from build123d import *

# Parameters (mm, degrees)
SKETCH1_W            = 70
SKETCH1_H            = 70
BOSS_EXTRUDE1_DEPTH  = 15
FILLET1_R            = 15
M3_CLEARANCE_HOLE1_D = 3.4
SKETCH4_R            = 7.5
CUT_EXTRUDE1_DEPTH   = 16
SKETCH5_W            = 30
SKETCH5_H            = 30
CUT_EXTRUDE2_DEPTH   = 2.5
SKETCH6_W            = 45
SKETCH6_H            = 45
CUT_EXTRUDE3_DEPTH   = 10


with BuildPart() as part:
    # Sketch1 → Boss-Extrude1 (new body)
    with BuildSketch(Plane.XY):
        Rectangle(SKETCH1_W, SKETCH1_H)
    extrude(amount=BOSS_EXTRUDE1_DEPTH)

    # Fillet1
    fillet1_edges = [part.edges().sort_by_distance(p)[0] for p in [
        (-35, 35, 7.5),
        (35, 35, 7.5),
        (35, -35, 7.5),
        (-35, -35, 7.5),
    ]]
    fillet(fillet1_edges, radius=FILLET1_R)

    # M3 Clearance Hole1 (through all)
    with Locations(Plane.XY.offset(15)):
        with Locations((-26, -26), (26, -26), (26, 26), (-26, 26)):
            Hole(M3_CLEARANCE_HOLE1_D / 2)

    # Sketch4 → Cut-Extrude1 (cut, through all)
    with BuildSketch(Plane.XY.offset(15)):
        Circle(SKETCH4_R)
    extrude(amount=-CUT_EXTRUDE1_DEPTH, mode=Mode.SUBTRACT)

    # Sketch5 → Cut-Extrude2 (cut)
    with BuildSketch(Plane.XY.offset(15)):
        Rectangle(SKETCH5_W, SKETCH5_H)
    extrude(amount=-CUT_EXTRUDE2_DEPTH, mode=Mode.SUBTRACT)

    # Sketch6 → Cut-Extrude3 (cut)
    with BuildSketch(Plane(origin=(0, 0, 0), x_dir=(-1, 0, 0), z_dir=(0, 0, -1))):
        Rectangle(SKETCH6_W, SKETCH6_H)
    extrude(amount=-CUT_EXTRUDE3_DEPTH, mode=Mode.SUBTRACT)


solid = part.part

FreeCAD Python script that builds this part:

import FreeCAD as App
import Part
import Sketcher
Q = App.Units.Quantity


def edges_at(feature, points):
    """Names of the edges that pass closest to the given points."""
    edges = feature.Shape.Edges
    near = lambda p: min(range(len(edges)), key=lambda i: edges[i].distToShape(Part.Vertex(*p))[0])
    return sorted({f"Edge{near(p) + 1}" for p in points})

doc = App.newDocument("Part")
params = doc.addObject("Spreadsheet::Sheet", "Params")
for row, (alias, value) in enumerate([
    ("sketch1_width", "70 mm"),
    ("pad1_length", "15 mm"),
    ("fillet_radius", "15 mm"),
    ("sketch2_diameter", "3.4 mm"),
    ("hole_diameter", "3.4 mm"),
    ("sketch3_diameter", "15 mm"),
    ("sketch4_width", "30 mm"),
    ("pocket2_length", "2.5 mm"),
    ("sketch5_width", "45 mm"),
    ("pocket3_length", "10 mm"),
], start=1):
    params.set(f"A{row}", alias)
    params.set(f"B{row}", "=" + value)
    params.setAlias(f"B{row}", alias)

body = doc.addObject("PartDesign::Body", "Body")

sketch1 = body.newObject("Sketcher::SketchObject", "Sketch")
sketch1.AttachmentSupport = (doc.getObject("XY_Plane"), [""])
sketch1.MapMode = "FlatFace"
sketch1.addGeometry(Part.LineSegment(App.Vector(-35, 35, 0), App.Vector(-35, -35, 0)), False)
sketch1.addGeometry(Part.LineSegment(App.Vector(-35, -35, 0), App.Vector(35, -35, 0)), False)
sketch1.addGeometry(Part.LineSegment(App.Vector(35, -35, 0), App.Vector(35, 35, 0)), False)
sketch1.addGeometry(Part.LineSegment(App.Vector(35, 35, 0), App.Vector(-35, 35, 0)), False)
sketch1.addConstraint(Sketcher.Constraint("Coincident", 0, 2, 1, 1))
sketch1.addConstraint(Sketcher.Constraint("Coincident", 1, 2, 2, 1))
sketch1.addConstraint(Sketcher.Constraint("Coincident", 2, 2, 3, 1))
sketch1.addConstraint(Sketcher.Constraint("Coincident", 3, 2, 0, 1))
sketch1.addConstraint(Sketcher.Constraint("Vertical", 0))
sketch1.addConstraint(Sketcher.Constraint("Horizontal", 1))
sketch1.addConstraint(Sketcher.Constraint("Vertical", 2))
sketch1.addConstraint(Sketcher.Constraint("Horizontal", 3))
sketch1.addConstraint(Sketcher.Constraint("Symmetric", 0, 2, 2, 2, -1, 1))
sketch1.addConstraint(Sketcher.Constraint("Equal", 3, 0))
sketch1.addConstraint(Sketcher.Constraint("DistanceX", 1, 1, 1, 2, Q("70 mm")))
sketch1.setExpression("Constraints[10]", "Params.sketch1_width")
pad1 = body.newObject("PartDesign::Pad", "Pad")
pad1.Profile = sketch1
pad1.setExpression("Length", "Params.pad1_length")
doc.recompute()

fillet = body.newObject("PartDesign::Fillet", "Fillet")
fillet.Base = (pad1, edges_at(pad1, [
    (-35, 35, 7.5),
    (35, 35, 7.5),
    (35, -35, 7.5),
    (-35, -35, 7.5),
]))
fillet.setExpression("Radius", "Params.fillet_radius")

sketch2 = body.newObject("Sketcher::SketchObject", "Sketch001")
sketch2.AttachmentSupport = (doc.getObject("XY_Plane"), [""])
sketch2.MapMode = "FlatFace"
sketch2.AttachmentOffset = App.Placement(App.Vector(0, 0, 15), App.Rotation())
sketch2.addGeometry(Part.Circle(App.Vector(-26, -26, 0), App.Vector(0, 0, 1), 1.7), False)
sketch2.addGeometry(Part.Circle(App.Vector(26, -26, 0), App.Vector(0, 0, 1), 1.7), False)
sketch2.addGeometry(Part.Circle(App.Vector(26, 26, 0), App.Vector(0, 0, 1), 1.7), False)
sketch2.addGeometry(Part.Circle(App.Vector(-26, 26, 0), App.Vector(0, 0, 1), 1.7), False)
sketch2.addConstraint(Sketcher.Constraint("Equal", 0, 1))
sketch2.addConstraint(Sketcher.Constraint("Equal", 1, 2))
sketch2.addConstraint(Sketcher.Constraint("Equal", 2, 3))
sketch2.addConstraint(Sketcher.Constraint("Symmetric", 0, 3, 2, 3, -1, 1))
sketch2.addConstraint(Sketcher.Constraint("Symmetric", 1, 3, 3, 3, -1, 1))
sketch2.addConstraint(Sketcher.Constraint("Symmetric", 0, 3, 1, 3, -2))
sketch2.addConstraint(Sketcher.Constraint("Diameter", 0, Q("3.4 mm")))
sketch2.addConstraint(Sketcher.Constraint("DistanceX", 0, 3, -1, 1, Q("26 mm")))
sketch2.addConstraint(Sketcher.Constraint("DistanceY", 0, 3, -1, 1, Q("26 mm")))
sketch2.setExpression("Constraints[6]", "Params.sketch2_diameter")
doc.recompute()
hole = body.newObject("PartDesign::Hole", "Hole")
hole.Profile = sketch2
hole.ThreadType = "None"
hole.setExpression("Diameter", "Params.hole_diameter")
hole.DepthType = "ThroughAll"

sketch3 = body.newObject("Sketcher::SketchObject", "Sketch002")
sketch3.AttachmentSupport = (doc.getObject("XY_Plane"), [""])
sketch3.MapMode = "FlatFace"
sketch3.AttachmentOffset = App.Placement(App.Vector(0, 0, 15), App.Rotation())
sketch3.addGeometry(Part.Circle(App.Vector(0, 0, 0), App.Vector(0, 0, 1), 8), False)
sketch3.addConstraint(Sketcher.Constraint("Coincident", 0, 3, -1, 1))
sketch3.addConstraint(Sketcher.Constraint("Diameter", 0, Q("15 mm")))
sketch3.setExpression("Constraints[1]", "Params.sketch3_diameter")
pocket1 = body.newObject("PartDesign::Pocket", "Pocket")
pocket1.Profile = sketch3
pocket1.Type = "ThroughAll"

sketch4 = body.newObject("Sketcher::SketchObject", "Sketch003")
sketch4.AttachmentSupport = (doc.getObject("XY_Plane"), [""])
sketch4.MapMode = "FlatFace"
sketch4.AttachmentOffset = App.Placement(App.Vector(0, 0, 15), App.Rotation())
sketch4.addGeometry(Part.LineSegment(App.Vector(-15, 15, 0), App.Vector(-15, -15, 0)), False)
sketch4.addGeometry(Part.LineSegment(App.Vector(-15, -15, 0), App.Vector(15, -15, 0)), False)
sketch4.addGeometry(Part.LineSegment(App.Vector(15, -15, 0), App.Vector(15, 15, 0)), False)
sketch4.addGeometry(Part.LineSegment(App.Vector(15, 15, 0), App.Vector(-15, 15, 0)), False)
sketch4.addConstraint(Sketcher.Constraint("Coincident", 0, 2, 1, 1))
sketch4.addConstraint(Sketcher.Constraint("Coincident", 1, 2, 2, 1))
sketch4.addConstraint(Sketcher.Constraint("Coincident", 2, 2, 3, 1))
sketch4.addConstraint(Sketcher.Constraint("Coincident", 3, 2, 0, 1))
sketch4.addConstraint(Sketcher.Constraint("Vertical", 0))
sketch4.addConstraint(Sketcher.Constraint("Horizontal", 1))
sketch4.addConstraint(Sketcher.Constraint("Vertical", 2))
sketch4.addConstraint(Sketcher.Constraint("Horizontal", 3))
sketch4.addConstraint(Sketcher.Constraint("Symmetric", 0, 2, 2, 2, -1, 1))
sketch4.addConstraint(Sketcher.Constraint("Equal", 3, 0))
sketch4.addConstraint(Sketcher.Constraint("DistanceX", 1, 1, 1, 2, Q("30 mm")))
sketch4.setExpression("Constraints[10]", "Params.sketch4_width")
pocket2 = body.newObject("PartDesign::Pocket", "Pocket001")
pocket2.Profile = sketch4
pocket2.setExpression("Length", "Params.pocket2_length")

sketch5 = body.newObject("Sketcher::SketchObject", "Sketch004")
sketch5.AttachmentSupport = (doc.getObject("XY_Plane"), [""])
sketch5.MapMode = "FlatFace"
sketch5.addGeometry(Part.LineSegment(App.Vector(22, 22, 0), App.Vector(22, -22, 0)), False)
sketch5.addGeometry(Part.LineSegment(App.Vector(22, -22, 0), App.Vector(-22, -22, 0)), False)
sketch5.addGeometry(Part.LineSegment(App.Vector(-22, -22, 0), App.Vector(-22, 22, 0)), False)
sketch5.addGeometry(Part.LineSegment(App.Vector(-22, 22, 0), App.Vector(22, 22, 0)), False)
sketch5.addConstraint(Sketcher.Constraint("Coincident", 0, 2, 1, 1))
sketch5.addConstraint(Sketcher.Constraint("Coincident", 1, 2, 2, 1))
sketch5.addConstraint(Sketcher.Constraint("Coincident", 2, 2, 3, 1))
sketch5.addConstraint(Sketcher.Constraint("Coincident", 3, 2, 0, 1))
sketch5.addConstraint(Sketcher.Constraint("Vertical", 0))
sketch5.addConstraint(Sketcher.Constraint("Horizontal", 1))
sketch5.addConstraint(Sketcher.Constraint("Vertical", 2))
sketch5.addConstraint(Sketcher.Constraint("Horizontal", 3))
sketch5.addConstraint(Sketcher.Constraint("Symmetric", 0, 2, 2, 2, -1, 1))
sketch5.addConstraint(Sketcher.Constraint("Equal", 3, 0))
sketch5.addConstraint(Sketcher.Constraint("DistanceX", 1, 2, 1, 1, Q("45 mm")))
sketch5.setExpression("Constraints[10]", "Params.sketch5_width")
pocket3 = body.newObject("PartDesign::Pocket", "Pocket002")
pocket3.Profile = sketch5
pocket3.setExpression("Length", "Params.pocket3_length")
pocket3.Reversed = True

doc.recompute()
